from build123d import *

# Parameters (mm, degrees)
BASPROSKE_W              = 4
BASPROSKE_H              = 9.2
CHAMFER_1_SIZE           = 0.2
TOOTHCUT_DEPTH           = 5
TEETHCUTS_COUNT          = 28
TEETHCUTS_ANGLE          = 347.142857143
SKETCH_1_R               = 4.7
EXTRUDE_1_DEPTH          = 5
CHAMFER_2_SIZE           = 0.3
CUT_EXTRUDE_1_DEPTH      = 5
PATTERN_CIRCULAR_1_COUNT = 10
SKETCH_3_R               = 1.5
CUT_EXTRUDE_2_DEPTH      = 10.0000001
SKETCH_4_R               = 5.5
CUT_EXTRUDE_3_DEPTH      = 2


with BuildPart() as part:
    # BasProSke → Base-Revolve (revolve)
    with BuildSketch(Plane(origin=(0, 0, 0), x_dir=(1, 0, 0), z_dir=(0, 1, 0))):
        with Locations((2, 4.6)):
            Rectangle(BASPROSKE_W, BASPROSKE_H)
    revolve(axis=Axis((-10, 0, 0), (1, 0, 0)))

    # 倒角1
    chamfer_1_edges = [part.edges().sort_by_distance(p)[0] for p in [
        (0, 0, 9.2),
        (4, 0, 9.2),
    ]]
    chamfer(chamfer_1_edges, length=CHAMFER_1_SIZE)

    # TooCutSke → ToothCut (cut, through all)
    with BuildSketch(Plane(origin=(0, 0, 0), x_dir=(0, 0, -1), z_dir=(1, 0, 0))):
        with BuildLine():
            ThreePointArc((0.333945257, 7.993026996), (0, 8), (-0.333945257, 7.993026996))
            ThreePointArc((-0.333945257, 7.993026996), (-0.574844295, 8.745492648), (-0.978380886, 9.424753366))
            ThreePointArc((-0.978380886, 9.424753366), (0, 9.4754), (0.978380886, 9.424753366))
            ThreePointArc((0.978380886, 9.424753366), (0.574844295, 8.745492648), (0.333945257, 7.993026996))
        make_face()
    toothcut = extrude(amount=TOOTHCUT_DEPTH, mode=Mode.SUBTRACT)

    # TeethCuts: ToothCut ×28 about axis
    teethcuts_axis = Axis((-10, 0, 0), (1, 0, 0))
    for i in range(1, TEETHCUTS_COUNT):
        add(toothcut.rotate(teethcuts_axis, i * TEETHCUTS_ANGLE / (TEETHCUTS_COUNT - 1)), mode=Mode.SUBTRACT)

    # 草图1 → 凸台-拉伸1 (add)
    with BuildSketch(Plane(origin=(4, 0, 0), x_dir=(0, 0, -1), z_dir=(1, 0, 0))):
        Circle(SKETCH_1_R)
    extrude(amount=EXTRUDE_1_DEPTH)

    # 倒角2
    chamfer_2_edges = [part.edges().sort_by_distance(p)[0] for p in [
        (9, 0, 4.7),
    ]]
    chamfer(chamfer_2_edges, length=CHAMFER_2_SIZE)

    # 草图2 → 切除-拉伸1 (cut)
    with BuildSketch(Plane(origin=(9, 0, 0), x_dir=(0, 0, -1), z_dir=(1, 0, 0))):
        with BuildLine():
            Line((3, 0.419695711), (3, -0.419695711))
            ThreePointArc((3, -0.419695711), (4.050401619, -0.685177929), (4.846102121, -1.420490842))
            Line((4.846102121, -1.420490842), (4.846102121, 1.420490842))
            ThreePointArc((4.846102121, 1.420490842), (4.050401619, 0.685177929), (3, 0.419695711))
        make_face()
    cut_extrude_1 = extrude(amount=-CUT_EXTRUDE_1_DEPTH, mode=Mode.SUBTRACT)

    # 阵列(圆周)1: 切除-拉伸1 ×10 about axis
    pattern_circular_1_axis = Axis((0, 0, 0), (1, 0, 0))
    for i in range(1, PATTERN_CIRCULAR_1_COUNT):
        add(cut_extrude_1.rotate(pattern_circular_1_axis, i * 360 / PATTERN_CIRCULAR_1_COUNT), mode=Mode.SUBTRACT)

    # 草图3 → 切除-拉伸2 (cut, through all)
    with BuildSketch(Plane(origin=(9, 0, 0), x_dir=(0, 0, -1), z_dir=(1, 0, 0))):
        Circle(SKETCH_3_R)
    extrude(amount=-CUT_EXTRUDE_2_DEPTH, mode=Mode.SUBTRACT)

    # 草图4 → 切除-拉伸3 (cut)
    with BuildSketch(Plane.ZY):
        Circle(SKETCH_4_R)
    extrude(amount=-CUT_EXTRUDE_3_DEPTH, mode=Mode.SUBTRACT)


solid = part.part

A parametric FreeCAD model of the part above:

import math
import FreeCAD as App
import Part
import Sketcher

V = App.Vector
Q = App.Units.Quantity


def edges_at(feature, points):
    """Names of the edges that pass closest to the given points."""
    edges = feature.Shape.Edges
    near = lambda p: min(range(len(edges)), key=lambda i: edges[i].distToShape(Part.Vertex(*p))[0])
    return sorted({f"Edge{near(p) + 1}" for p in points})

doc = App.newDocument("Part")
body = doc.addObject("PartDesign::Body", "Body")

# Sketch on XZ plane
sketch1 = doc.addObject("Sketcher::SketchObject", "Sketch")
body.addObject(sketch1)
sketch1.AttachmentSupport = (doc.XZ_Plane, [""])
sketch1.MapMode = "FlatFace"
sketch1.addGeometry([
    Part.LineSegment(V(0, -9.2, 0), V(0, 0, 0)),
    Part.LineSegment(V(0, 0, 0), V(4, 0, 0)),
    Part.LineSegment(V(4, 0, 0), V(4, -9.2, 0)),
    Part.LineSegment(V(4, -9.2, 0), V(0, -9.2, 0)),
], False)
sketch1.addConstraint([
    Sketcher.Constraint("Coincident", 0, 2, 1, 1),
    Sketcher.Constraint("Coincident", 1, 2, 2, 1),
    Sketcher.Constraint("Coincident", 2, 2, 3, 1),
    Sketcher.Constraint("Coincident", 3, 2, 0, 1),
    Sketcher.Constraint("Vertical", 0),
    Sketcher.Constraint("Horizontal", 1),
    Sketcher.Constraint("Vertical", 2),
    Sketcher.Constraint("Horizontal", 3),
    Sketcher.Constraint("Coincident", 0, 2, -1, 1),
    Sketcher.Constraint("DistanceX", 1, 1, 1, 2, Q("4 mm")),
    Sketcher.Constraint("DistanceY", 0, 1, 0, 2, Q("9.2 mm")),
])
revolution = doc.addObject("PartDesign::Revolution", "Revolution")
body.addObject(revolution)
revolution.Profile = sketch1
revolution.ReferenceAxis = (sketch1, ["H_Axis"])
revolution.Angle = 360
doc.recompute()

chamfer = doc.addObject("PartDesign::Chamfer", "Chamfer")
body.addObject(chamfer)
chamfer.Base = (revolution, edges_at(revolution, [(0, 0, 9.2), (4, 0, 9.2)]))
chamfer.Size = 0.2

# Sketch on YZ plane
sketch2 = doc.addObject("Sketcher::SketchObject", "Sketch001")
body.addObject(sketch2)
sketch2.AttachmentSupport = (doc.YZ_Plane, [""])
sketch2.MapMode = "FlatFace"
sketch2.addGeometry([
    Part.ArcOfCircle(Part.Circle(V(0, 0, 0), V(0, 0, 1), 8), math.radians(-2.392402), math.radians(2.392402)),
    Part.ArcOfCircle(Part.Circle(V(7.308922, -3.766437, 0), V(0, 0, 1), 3.5), math.radians(52.805456), math.radians(78.728486)),
    Part.ArcOfCircle(Part.Circle(V(0, 0, 0), V(0, 0, 1), 9.4754), math.radians(-5.92663), math.radians(5.92663)),
    Part.ArcOfCircle(Part.Circle(V(7.308922, 3.766437, 0), V(0, 0, 1), 3.5), math.radians(-78.728486), math.radians(-52.805456)),
], False)
sketch2.addConstraint([
    Sketcher.Constraint("Coincident", 0, 1, 1, 2),
    Sketcher.Constraint("Coincident", 1, 1, 2, 1),
    Sketcher.Constraint("Coincident", 2, 2, 3, 2),
    Sketcher.Constraint("Coincident", 3, 1, 0, 2),
    Sketcher.Constraint("Coincident", 0, 3, -1, 1),
    Sketcher.Constraint("Coincident", 2, 3, -1, 1),
    Sketcher.Constraint("Equal", 1, 3),
    Sketcher.Constraint("Symmetric", 1, 3, 3, 3, -1),
    Sketcher.Constraint("Radius", 0, Q("8 mm")),
    Sketcher.Constraint("Radius", 1, Q("3.5 mm")),
    Sketcher.Constraint("Radius", 2, Q("9.4754 mm")),
    Sketcher.Constraint("DistanceX", -1, 1, 1, 3, Q("7.308922 mm")),
    Sketcher.Constraint("DistanceY", 1, 1, -1, 1, Q("0.978381 mm")),
])
pocket1 = doc.addObject("PartDesign::Pocket", "Pocket")
body.addObject(pocket1)
pocket1.Profile = sketch2
pocket1.Type = "ThroughAll"
pocket1.Reversed = True
doc.recompute()

polarpattern = doc.addObject("PartDesign::PolarPattern", "PolarPattern")
body.addObject(polarpattern)
polarpattern.Originals = [pocket1]
polarpattern.Axis = (doc.X_Axis, [""])
polarpattern.Angle = 360
polarpattern.Occurrences = 28
body.Tip = polarpattern

# Sketch on YZ plane
sketch3 = doc.addObject("Sketcher::SketchObject", "Sketch002")
body.addObject(sketch3)
sketch3.AttachmentSupport = (doc.YZ_Plane, [""])
sketch3.MapMode = "FlatFace"
sketch3.AttachmentOffset = App.Placement(V(0, 0, 4), App.Rotation())
sketch3.addGeometry(Part.Circle(V(0, 0, 0), V(0, 0, 1), 4.7), False)
sketch3.addConstraint([
    Sketcher.Constraint("Coincident", 0, 3, -1, 1),
    Sketcher.Constraint("Diameter", 0, Q("9.4 mm")),
])
pad1 = doc.addObject("PartDesign::Pad", "Pad")
body.addObject(pad1)
pad1.Profile = sketch3
pad1.Length = 5
doc.recompute()

chamfer2 = doc.addObject("PartDesign::Chamfer", "Chamfer001")
body.addObject(chamfer2)
chamfer2.Base = (pad1, edges_at(pad1, [(9, 0, 4.7)]))
chamfer2.Size = 0.3

# Sketch on YZ plane
sketch4 = doc.addObject("Sketcher::SketchObject", "Sketch003")
body.addObject(sketch4)
sketch4.AttachmentSupport = (doc.YZ_Plane, [""])
sketch4.MapMode = "FlatFace"
sketch4.AttachmentOffset = App.Placement(V(0, 0, 9), App.Rotation())
sketch4.addGeometry([
    Part.LineSegment(V(0.419696, -3, 0), V(-0.419696, -3, 0)),
    Part.ArcOfCircle(Part.Circle(V(-2.616104, -3.003622, 0), V(0, 0, 1), 2.196412), math.radians(-57.019843), math.radians(0.094489)),
    Part.LineSegment(V(-1.420491, -4.846102, 0), V(1.420491, -4.846102, 0)),
    Part.ArcOfCircle(Part.Circle(V(2.616104, -3.003622, 0), V(0, 0, 1), 2.196412), math.radians(179.905511), math.radians(237.019843)),
], False)
sketch4.addConstraint([
    Sketcher.Constraint("Coincident", 0, 2, 1, 2),
    Sketcher.Constraint("Coincident", 1, 1, 2, 1),
    Sketcher.Constraint("Coincident", 2, 2, 3, 2),
    Sketcher.Constraint("Coincident", 3, 1, 0, 1),
    Sketcher.Constraint("Horizontal", 0),
    Sketcher.Constraint("Horizontal", 2),
    Sketcher.Constraint("Equal", 1, 3),
    Sketcher.Constraint("Symmetric", 1, 3, 3, 3, -2),
    Sketcher.Constraint("DistanceY", 0, 2, -1, 1, Q("3 mm")),
    Sketcher.Constraint("Radius", 1, Q("2.196412 mm")),
    Sketcher.Constraint("DistanceX", 0, 2, 0, 1, Q("0.839391 mm")),
    Sketcher.Constraint("DistanceX", 2, 1, 2, 2, Q("2.840982 mm")),
    Sketcher.Constraint("DistanceY", 1, 3, -1, 1, Q("3.003622 mm")),
])
pocket2 = doc.addObject("PartDesign::Pocket", "Pocket001")
body.addObject(pocket2)
pocket2.Profile = sketch4
pocket2.Length = 5
doc.recompute()

polarpattern2 = doc.addObject("PartDesign::PolarPattern", "PolarPattern001")
body.addObject(polarpattern2)
polarpattern2.Originals = [pocket2]
polarpattern2.Axis = (doc.X_Axis, [""])
polarpattern2.Angle = 360
polarpattern2.Occurrences = 10
body.Tip = polarpattern2

# Sketch on YZ plane
sketch5 = doc.addObject("Sketcher::SketchObject", "Sketch004")
body.addObject(sketch5)
sketch5.AttachmentSupport = (doc.YZ_Plane, [""])
sketch5.MapMode = "FlatFace"
sketch5.AttachmentOffset = App.Placement(V(0, 0, 9), App.Rotation())
sketch5.addGeometry(Part.Circle(V(0, 0, 0), V(0, 0, 1), 1.5), False)
sketch5.addConstraint([
    Sketcher.Constraint("Coincident", 0, 3, -1, 1),
    Sketcher.Constraint("Diameter", 0, Q("3 mm")),
])
pocket3 = doc.addObject("PartDesign::Pocket", "Pocket002")
body.addObject(pocket3)
pocket3.Profile = sketch5
pocket3.Type = "ThroughAll"

# Sketch on YZ plane
sketch6 = doc.addObject("Sketcher::SketchObject", "Sketch005")
body.addObject(sketch6)
sketch6.AttachmentSupport = (doc.YZ_Plane, [""])
sketch6.MapMode = "FlatFace"
sketch6.addGeometry(Part.Circle(V(0, 0, 0), V(0, 0, 1), 5.5), False)
sketch6.addConstraint([
    Sketcher.Constraint("Coincident", 0, 3, -1, 1),
    Sketcher.Constraint("Diameter", 0, Q("11 mm")),
])
pocket4 = doc.addObject("PartDesign::Pocket", "Pocket003")
body.addObject(pocket4)
pocket4.Profile = sketch6
pocket4.Length = 2
pocket4.Reversed = True

doc.recompute()
